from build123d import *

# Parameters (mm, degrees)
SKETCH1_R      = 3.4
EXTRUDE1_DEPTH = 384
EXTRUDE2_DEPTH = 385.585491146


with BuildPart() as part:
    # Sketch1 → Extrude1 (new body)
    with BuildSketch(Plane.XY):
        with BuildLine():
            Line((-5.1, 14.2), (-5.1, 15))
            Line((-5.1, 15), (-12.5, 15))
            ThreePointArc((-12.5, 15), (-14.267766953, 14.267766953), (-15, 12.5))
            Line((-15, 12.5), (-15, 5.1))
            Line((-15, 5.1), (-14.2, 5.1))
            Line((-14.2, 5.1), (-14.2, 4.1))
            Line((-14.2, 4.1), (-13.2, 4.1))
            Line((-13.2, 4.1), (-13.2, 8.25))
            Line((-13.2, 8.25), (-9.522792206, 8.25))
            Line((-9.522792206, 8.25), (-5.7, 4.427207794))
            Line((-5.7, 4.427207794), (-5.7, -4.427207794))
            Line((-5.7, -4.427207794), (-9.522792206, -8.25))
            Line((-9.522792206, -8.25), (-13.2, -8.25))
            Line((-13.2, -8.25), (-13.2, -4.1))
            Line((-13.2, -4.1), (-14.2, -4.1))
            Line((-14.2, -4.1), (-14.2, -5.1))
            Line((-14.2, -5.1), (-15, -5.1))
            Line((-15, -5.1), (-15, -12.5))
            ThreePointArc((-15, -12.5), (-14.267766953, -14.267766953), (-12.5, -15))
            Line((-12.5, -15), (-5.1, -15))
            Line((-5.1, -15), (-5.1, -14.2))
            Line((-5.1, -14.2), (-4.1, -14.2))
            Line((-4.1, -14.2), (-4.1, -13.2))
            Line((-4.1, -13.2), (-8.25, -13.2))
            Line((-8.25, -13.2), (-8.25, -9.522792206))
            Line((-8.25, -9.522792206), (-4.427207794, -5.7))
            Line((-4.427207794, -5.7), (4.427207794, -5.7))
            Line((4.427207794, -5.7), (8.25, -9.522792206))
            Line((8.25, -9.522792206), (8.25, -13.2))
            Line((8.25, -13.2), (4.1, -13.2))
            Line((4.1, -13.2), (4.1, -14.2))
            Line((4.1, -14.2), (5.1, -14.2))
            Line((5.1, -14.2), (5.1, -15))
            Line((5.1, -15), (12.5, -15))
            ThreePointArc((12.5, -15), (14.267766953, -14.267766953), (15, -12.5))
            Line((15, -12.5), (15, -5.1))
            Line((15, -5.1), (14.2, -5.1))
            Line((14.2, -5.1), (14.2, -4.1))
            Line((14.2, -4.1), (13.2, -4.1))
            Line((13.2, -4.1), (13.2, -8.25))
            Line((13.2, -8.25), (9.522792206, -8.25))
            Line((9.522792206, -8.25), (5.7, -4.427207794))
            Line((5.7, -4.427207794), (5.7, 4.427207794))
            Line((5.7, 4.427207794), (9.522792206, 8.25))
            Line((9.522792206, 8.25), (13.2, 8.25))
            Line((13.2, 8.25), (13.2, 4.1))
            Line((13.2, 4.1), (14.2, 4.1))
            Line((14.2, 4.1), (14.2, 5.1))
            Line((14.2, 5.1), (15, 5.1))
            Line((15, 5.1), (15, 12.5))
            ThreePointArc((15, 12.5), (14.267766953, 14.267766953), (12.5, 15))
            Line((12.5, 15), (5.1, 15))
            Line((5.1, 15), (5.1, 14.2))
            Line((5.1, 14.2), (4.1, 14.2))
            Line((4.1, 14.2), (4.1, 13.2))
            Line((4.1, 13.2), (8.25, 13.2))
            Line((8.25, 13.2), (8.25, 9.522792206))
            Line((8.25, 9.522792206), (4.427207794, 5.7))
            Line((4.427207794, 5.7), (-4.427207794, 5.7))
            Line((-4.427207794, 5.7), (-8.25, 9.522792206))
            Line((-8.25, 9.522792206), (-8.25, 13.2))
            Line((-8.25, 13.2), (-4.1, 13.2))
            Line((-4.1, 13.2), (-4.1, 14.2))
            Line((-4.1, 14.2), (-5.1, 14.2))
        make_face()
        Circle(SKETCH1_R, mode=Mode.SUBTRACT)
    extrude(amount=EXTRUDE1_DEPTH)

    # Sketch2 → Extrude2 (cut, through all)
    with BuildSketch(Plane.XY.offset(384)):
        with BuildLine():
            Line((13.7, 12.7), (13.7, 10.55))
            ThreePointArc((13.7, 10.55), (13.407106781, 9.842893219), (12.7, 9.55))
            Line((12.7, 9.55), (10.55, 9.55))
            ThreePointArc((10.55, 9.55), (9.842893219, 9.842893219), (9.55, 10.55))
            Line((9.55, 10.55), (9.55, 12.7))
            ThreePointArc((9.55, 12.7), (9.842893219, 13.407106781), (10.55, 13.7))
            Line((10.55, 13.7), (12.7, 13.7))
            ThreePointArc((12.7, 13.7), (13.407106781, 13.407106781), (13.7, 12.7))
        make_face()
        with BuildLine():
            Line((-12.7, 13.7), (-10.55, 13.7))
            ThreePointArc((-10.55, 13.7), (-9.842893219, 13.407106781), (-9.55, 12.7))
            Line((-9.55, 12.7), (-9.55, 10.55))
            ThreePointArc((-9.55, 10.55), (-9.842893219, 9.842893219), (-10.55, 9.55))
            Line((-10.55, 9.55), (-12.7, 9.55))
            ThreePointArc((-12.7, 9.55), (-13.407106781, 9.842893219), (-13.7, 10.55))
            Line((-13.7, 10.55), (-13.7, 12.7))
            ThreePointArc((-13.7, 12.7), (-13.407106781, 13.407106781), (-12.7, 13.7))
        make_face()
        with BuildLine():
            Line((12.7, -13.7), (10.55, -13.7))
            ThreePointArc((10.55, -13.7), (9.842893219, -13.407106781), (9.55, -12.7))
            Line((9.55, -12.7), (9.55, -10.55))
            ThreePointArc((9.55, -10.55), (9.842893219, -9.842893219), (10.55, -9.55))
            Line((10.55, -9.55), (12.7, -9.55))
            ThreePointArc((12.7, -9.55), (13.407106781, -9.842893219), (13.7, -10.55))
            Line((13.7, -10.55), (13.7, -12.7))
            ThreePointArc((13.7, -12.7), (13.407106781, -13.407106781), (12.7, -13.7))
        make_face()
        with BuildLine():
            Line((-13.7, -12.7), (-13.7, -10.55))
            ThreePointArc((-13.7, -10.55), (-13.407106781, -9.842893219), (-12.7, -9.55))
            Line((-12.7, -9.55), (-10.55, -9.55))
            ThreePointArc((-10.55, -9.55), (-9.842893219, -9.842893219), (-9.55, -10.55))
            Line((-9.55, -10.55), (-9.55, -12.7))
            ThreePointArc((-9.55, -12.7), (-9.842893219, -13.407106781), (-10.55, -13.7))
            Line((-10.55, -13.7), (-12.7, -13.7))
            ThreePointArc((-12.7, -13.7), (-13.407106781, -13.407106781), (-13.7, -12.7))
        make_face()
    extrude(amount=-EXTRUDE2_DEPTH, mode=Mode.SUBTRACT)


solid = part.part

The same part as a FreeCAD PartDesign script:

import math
import FreeCAD as App
import Part
import Sketcher

V = App.Vector

doc = App.newDocument("Part")
body = doc.addObject("PartDesign::Body", "Body")

# Sketch on XY plane
sketch1 = body.newObject("Sketcher::SketchObject", "Sketch")
sketch1.AttachmentSupport = (doc.getObject("XY_Plane"), [""])
sketch1.MapMode = "FlatFace"
sketch1.addGeometry([
    Part.LineSegment(V(-5.1, 14.2, 0), V(-5.1, 15, 0)),  # 0
    Part.LineSegment(V(-5.1, 15, 0), V(-12.5, 15, 0)),  # 1
    Part.ArcOfCircle(Part.Circle(V(-12.5, 12.5, 0), V(0, 0, 1), 2.5), math.radians(90), math.radians(180)),  # 2
    Part.LineSegment(V(-15, 12.5, 0), V(-15, 5.1, 0)),  # 3
    Part.LineSegment(V(-15, 5.1, 0), V(-14.2, 5.1, 0)),  # 4
    Part.LineSegment(V(-14.2, 5.1, 0), V(-14.2, 4.1, 0)),  # 5
    Part.LineSegment(V(-14.2, 4.1, 0), V(-13.2, 4.1, 0)),  # 6
    Part.LineSegment(V(-13.2, 4.1, 0), V(-13.2, 8.2, 0)),  # 7
    Part.LineSegment(V(-13.2, 8.2, 0), V(-9.5, 8.2, 0)),  # 8
    Part.LineSegment(V(-9.5, 8.2, 0), V(-5.7, 4.4, 0)),  # 9
    Part.LineSegment(V(-5.7, 4.4, 0), V(-5.7, -4.4, 0)),  # 10
    Part.LineSegment(V(-5.7, -4.4, 0), V(-9.5, -8.2, 0)),  # 11
    Part.LineSegment(V(-9.5, -8.2, 0), V(-13.2, -8.2, 0)),  # 12
    Part.LineSegment(V(-13.2, -8.2, 0), V(-13.2, -4.1, 0)),  # 13
    Part.LineSegment(V(-13.2, -4.1, 0), V(-14.2, -4.1, 0)),  # 14
    Part.LineSegment(V(-14.2, -4.1, 0), V(-14.2, -5.1, 0)),  # 15
    Part.LineSegment(V(-14.2, -5.1, 0), V(-15, -5.1, 0)),  # 16
    Part.LineSegment(V(-15, -5.1, 0), V(-15, -12.5, 0)),  # 17
    Part.ArcOfCircle(Part.Circle(V(-12.5, -12.5, 0), V(0, 0, 1), 2.5), math.radians(180), math.radians(270)),  # 18
    Part.LineSegment(V(-12.5, -15, 0), V(-5.1, -15, 0)),  # 19
    Part.LineSegment(V(-5.1, -15, 0), V(-5.1, -14.2, 0)),  # 20
    Part.LineSegment(V(-5.1, -14.2, 0), V(-4.1, -14.2, 0)),  # 21
    Part.LineSegment(V(-4.1, -14.2, 0), V(-4.1, -13.2, 0)),  # 22
    Part.LineSegment(V(-4.1, -13.2, 0), V(-8.2, -13.2, 0)),  # 23
    Part.LineSegment(V(-8.2, -13.2, 0), V(-8.2, -9.5, 0)),  # 24
    Part.LineSegment(V(-8.2, -9.5, 0), V(-4.4, -5.7, 0)),  # 25
    Part.LineSegment(V(-4.4, -5.7, 0), V(4.4, -5.7, 0)),  # 26
    Part.LineSegment(V(4.4, -5.7, 0), V(8.2, -9.5, 0)),  # 27
    Part.LineSegment(V(8.2, -9.5, 0), V(8.2, -13.2, 0)),  # 28
    Part.LineSegment(V(8.2, -13.2, 0), V(4.1, -13.2, 0)),  # 29
    Part.LineSegment(V(4.1, -13.2, 0), V(4.1, -14.2, 0)),  # 30
    Part.LineSegment(V(4.1, -14.2, 0), V(5.1, -14.2, 0)),  # 31
    Part.LineSegment(V(5.1, -14.2, 0), V(5.1, -15, 0)),  # 32
    Part.LineSegment(V(5.1, -15, 0), V(12.5, -15, 0)),  # 33
    Part.ArcOfCircle(Part.Circle(V(12.5, -12.5, 0), V(0, 0, 1), 2.5), math.radians(-90), math.radians(0)),  # 34
    Part.LineSegment(V(15, -12.5, 0), V(15, -5.1, 0)),  # 35
    Part.LineSegment(V(15, -5.1, 0), V(14.2, -5.1, 0)),  # 36
    Part.LineSegment(V(14.2, -5.1, 0), V(14.2, -4.1, 0)),  # 37
    Part.LineSegment(V(14.2, -4.1, 0), V(13.2, -4.1, 0)),  # 38
    Part.LineSegment(V(13.2, -4.1, 0), V(13.2, -8.2, 0)),  # 39
    Part.LineSegment(V(13.2, -8.2, 0), V(9.5, -8.2, 0)),  # 40
    Part.LineSegment(V(9.5, -8.2, 0), V(5.7, -4.4, 0)),  # 41
    Part.LineSegment(V(5.7, -4.4, 0), V(5.7, 4.4, 0)),  # 42
    Part.LineSegment(V(5.7, 4.4, 0), V(9.5, 8.2, 0)),  # 43
    Part.LineSegment(V(9.5, 8.2, 0), V(13.2, 8.2, 0)),  # 44
    Part.LineSegment(V(13.2, 8.2, 0), V(13.2, 4.1, 0)),  # 45
    Part.LineSegment(V(13.2, 4.1, 0), V(14.2, 4.1, 0)),  # 46
    Part.LineSegment(V(14.2, 4.1, 0), V(14.2, 5.1, 0)),  # 47
    Part.LineSegment(V(14.2, 5.1, 0), V(15, 5.1, 0)),  # 48
    Part.LineSegment(V(15, 5.1, 0), V(15, 12.5, 0)),  # 49
    Part.ArcOfCircle(Part.Circle(V(12.5, 12.5, 0), V(0, 0, 1), 2.5), math.radians(0), math.radians(90)),  # 50
    Part.LineSegment(V(12.5, 15, 0), V(5.1, 15, 0)),  # 51
    Part.LineSegment(V(5.1, 15, 0), V(5.1, 14.2, 0)),  # 52
    Part.LineSegment(V(5.1, 14.2, 0), V(4.1, 14.2, 0)),  # 53
    Part.LineSegment(V(4.1, 14.2, 0), V(4.1, 13.2, 0)),  # 54
    Part.LineSegment(V(4.1, 13.2, 0), V(8.2, 13.2, 0)),  # 55
    Part.LineSegment(V(8.2, 13.2, 0), V(8.2, 9.5, 0)),  # 56
    Part.LineSegment(V(8.2, 9.5, 0), V(4.4, 5.7, 0)),  # 57
    Part.LineSegment(V(4.4, 5.7, 0), V(-4.4, 5.7, 0)),  # 58
    Part.LineSegment(V(-4.4, 5.7, 0), V(-8.2, 9.5, 0)),  # 59
    Part.LineSegment(V(-8.2, 9.5, 0), V(-8.2, 13.2, 0)),  # 60
    Part.LineSegment(V(-8.2, 13.2, 0), V(-4.1, 13.2, 0)),  # 61
    Part.LineSegment(V(-4.1, 13.2, 0), V(-4.1, 14.2, 0)),  # 62
    Part.LineSegment(V(-4.1, 14.2, 0), V(-5.1, 14.2, 0)),  # 63
    Part.Circle(V(0, 0, 0), V(0, 0, 1), 3.4),  # 64
], False)
sketch1.addConstraint([
    Sketcher.Constraint("Coincident", 0, 2, 1, 1),
    Sketcher.Constraint("Tangent", 1, 2, 2, 1),
    Sketcher.Constraint("Tangent", 2, 2, 3, 1),
    Sketcher.Constraint("Coincident", 3, 2, 4, 1),
    Sketcher.Constraint("Coincident", 4, 2, 5, 1),
    Sketcher.Constraint("Coincident", 5, 2, 6, 1),
    Sketcher.Constraint("Coincident", 6, 2, 7, 1),
    Sketcher.Constraint("Coincident", 7, 2, 8, 1),
    Sketcher.Constraint("Coincident", 8, 2, 9, 1),
    Sketcher.Constraint("Coincident", 9, 2, 10, 1),
    Sketcher.Constraint("Coincident", 10, 2, 11, 1),
    Sketcher.Constraint("Coincident", 11, 2, 12, 1),
    Sketcher.Constraint("Coincident", 12, 2, 13, 1),
    Sketcher.Constraint("Coincident", 13, 2, 14, 1),
    Sketcher.Constraint("Coincident", 14, 2, 15, 1),
    Sketcher.Constraint("Coincident", 15, 2, 16, 1),
    Sketcher.Constraint("Coincident", 16, 2, 17, 1),
    Sketcher.Constraint("Tangent", 17, 2, 18, 1),
    Sketcher.Constraint("Tangent", 18, 2, 19, 1),
    Sketcher.Constraint("Coincident", 19, 2, 20, 1),
    Sketcher.Constraint("Coincident", 20, 2, 21, 1),
    Sketcher.Constraint("Coincident", 21, 2, 22, 1),
    Sketcher.Constraint("Coincident", 22, 2, 23, 1),
    Sketcher.Constraint("Coincident", 23, 2, 24, 1),
    Sketcher.Constraint("Coincident", 24, 2, 25, 1),
    Sketcher.Constraint("Coincident", 25, 2, 26, 1),
    Sketcher.Constraint("Coincident", 26, 2, 27, 1),
    Sketcher.Constraint("Coincident", 27, 2, 28, 1),
    Sketcher.Constraint("Coincident", 28, 2, 29, 1),
    Sketcher.Constraint("Coincident", 29, 2, 30, 1),
    Sketcher.Constraint("Coincident", 30, 2, 31, 1),
    Sketcher.Constraint("Coincident", 31, 2, 32, 1),
    Sketcher.Constraint("Coincident", 32, 2, 33, 1),
    Sketcher.Constraint("Tangent", 33, 2, 34, 1),
    Sketcher.Constraint("Tangent", 34, 2, 35, 1),
    Sketcher.Constraint("Coincident", 35, 2, 36, 1),
    Sketcher.Constraint("Coincident", 36, 2, 37, 1),
    Sketcher.Constraint("Coincident", 37, 2, 38, 1),
    Sketcher.Constraint("Coincident", 38, 2, 39, 1),
    Sketcher.Constraint("Coincident", 39, 2, 40, 1),
    Sketcher.Constraint("Coincident", 40, 2, 41, 1),
    Sketcher.Constraint("Coincident", 41, 2, 42, 1),
    Sketcher.Constraint("Coincident", 42, 2, 43, 1),
    Sketcher.Constraint("Coincident", 43, 2, 44, 1),
    Sketcher.Constraint("Coincident", 44, 2, 45, 1),
    Sketcher.Constraint("Coincident", 45, 2, 46, 1),
    Sketcher.Constraint("Coincident", 46, 2, 47, 1),
    Sketcher.Constraint("Coincident", 47, 2, 48, 1),
    Sketcher.Constraint("Coincident", 48, 2, 49, 1),
    Sketcher.Constraint("Tangent", 49, 2, 50, 1),
    Sketcher.Constraint("Tangent", 50, 2, 51, 1),
    Sketcher.Constraint("Coincident", 51, 2, 52, 1),
    Sketcher.Constraint("Coincident", 52, 2, 53, 1),
    Sketcher.Constraint("Coincident", 53, 2, 54, 1),
    Sketcher.Constraint("Coincident", 54, 2, 55, 1),
    Sketcher.Constraint("Coincident", 55, 2, 56, 1),
    Sketcher.Constraint("Coincident", 56, 2, 57, 1),
    Sketcher.Constraint("Coincident", 57, 2, 58, 1),
    Sketcher.Constraint("Coincident", 58, 2, 59, 1),
    Sketcher.Constraint("Coincident", 59, 2, 60, 1),
    Sketcher.Constraint("Coincident", 60, 2, 61, 1),
    Sketcher.Constraint("Coincident", 61, 2, 62, 1),
    Sketcher.Constraint("Coincident", 62, 2, 63, 1),
    Sketcher.Constraint("Coincident", 63, 2, 0, 1),
    Sketcher.Constraint("Vertical", 0),
    Sketcher.Constraint("Horizontal", 1),
    Sketcher.Constraint("Vertical", 3),
    Sketcher.Constraint("Horizontal", 4),
    Sketcher.Constraint("Vertical", 5),
    Sketcher.Constraint("Horizontal", 6),
    Sketcher.Constraint("Vertical", 7),
    Sketcher.Constraint("Horizontal", 8),
    Sketcher.Constraint("Vertical", 10),
    Sketcher.Constraint("Horizontal", 12),
    Sketcher.Constraint("Vertical", 13),
    Sketcher.Constraint("Horizontal", 14),
    Sketcher.Constraint("Vertical", 15),
    Sketcher.Constraint("Horizontal", 16),
    Sketcher.Constraint("Vertical", 17),
    Sketcher.Constraint("Horizontal", 19),
    Sketcher.Constraint("Vertical", 20),
    Sketcher.Constraint("Horizontal", 21),
    Sketcher.Constraint("Vertical", 22),
    Sketcher.Constraint("Horizontal", 23),
    Sketcher.Constraint("Vertical", 24),
    Sketcher.Constraint("Horizontal", 26),
    Sketcher.Constraint("Vertical", 28),
    Sketcher.Constraint("Horizontal", 29),
    Sketcher.Constraint("Vertical", 30),
    Sketcher.Constraint("Horizontal", 31),
    Sketcher.Constraint("Vertical", 32),
    Sketcher.Constraint("Horizontal", 33),
    Sketcher.Constraint("Vertical", 35),
    Sketcher.Constraint("Horizontal", 36),
    Sketcher.Constraint("Vertical", 37),
    Sketcher.Constraint("Horizontal", 38),
    Sketcher.Constraint("Vertical", 39),
    Sketcher.Constraint("Horizontal", 40),
    Sketcher.Constraint("Vertical", 42),
    Sketcher.Constraint("Horizontal", 44),
    Sketcher.Constraint("Vertical", 45),
    Sketcher.Constraint("Horizontal", 46),
    Sketcher.Constraint("Vertical", 47),
    Sketcher.Constraint("Horizontal", 48),
    Sketcher.Constraint("Vertical", 49),
    Sketcher.Constraint("Horizontal", 51),
    Sketcher.Constraint("Vertical", 52),
    Sketcher.Constraint("Horizontal", 53),
    Sketcher.Constraint("Vertical", 54),
    Sketcher.Constraint("Horizontal", 55),
    Sketcher.Constraint("Vertical", 56),
    Sketcher.Constraint("Horizontal", 58),
    Sketcher.Constraint("Vertical", 60),
    Sketcher.Constraint("Horizontal", 61),
    Sketcher.Constraint("Vertical", 62),
    Sketcher.Constraint("Horizontal", 63),
    Sketcher.Constraint("Coincident", 64, 3, -1, 1),
    Sketcher.Constraint("Equal", 2, 18),
    Sketcher.Constraint("Equal", 18, 34),
    Sketcher.Constraint("Equal", 34, 50),
    Sketcher.Constraint("Symmetric", 2, 3, 34, 3, -1, 1),
    Sketcher.Constraint("Symmetric", 18, 3, 50, 3, -1, 1),
    Sketcher.Constraint("Symmetric", 4, 2, 36, 2, -1, 1),
    Sketcher.Constraint("Symmetric", 6, 2, 38, 2, -1, 1),
    Sketcher.Constraint("Symmetric", 8, 2, 40, 2, -1, 1),
    Sketcher.Constraint("Symmetric", 9, 2, 41, 2, -1, 1),
    Sketcher.Constraint("Symmetric", 11, 2, 43, 2, -1, 1),
    Sketcher.Constraint("Symmetric", 13, 2, 45, 2, -1, 1),
    Sketcher.Constraint("Symmetric", 15, 2, 47, 2, -1, 1),
    Sketcher.Constraint("Symmetric", 20, 2, 52, 2, -1, 1),
    Sketcher.Constraint("Symmetric", 22, 2, 54, 2, -1, 1),
    Sketcher.Constraint("Symmetric", 24, 2, 56, 2, -1, 1),
    Sketcher.Constraint("Symmetric", 25, 2, 57, 2, -1, 1),
    Sketcher.Constraint("Symmetric", 27, 2, 59, 2, -1, 1),
    Sketcher.Constraint("Symmetric", 29, 2, 61, 2, -1, 1),
    Sketcher.Constraint("Symmetric", 31, 2, 63, 2, -1, 1),
    Sketcher.Constraint("Symmetric", 18, 3, 34, 3, -2),
    Sketcher.Constraint("Symmetric", 24, 2, 27, 2, -2),
    Sketcher.Constraint("Symmetric", 22, 2, 29, 2, -2),
    Sketcher.Constraint("Symmetric", 20, 2, 31, 2, -2),
    Sketcher.Constraint("Symmetric", 15, 2, 36, 2, -2),
    Sketcher.Constraint("Symmetric", 13, 2, 38, 2, -2),
    Sketcher.Constraint("Symmetric", 11, 2, 40, 2, -2),
    Sketcher.Constraint("Perpendicular", 9, 11),
    Sketcher.Constraint("Parallel", 11, 25),
    Sketcher.Constraint("Perpendicular", 25, 27),
    Sketcher.Constraint("Perpendicular", 41, 43),
    Sketcher.Constraint("Perpendicular", 57, 59),
    Sketcher.Constraint("Horizontal", 10, 2, 41, 2),
    Sketcher.Constraint("Equal", 14, 21),
    Sketcher.Constraint("Equal", 48, 0),
    Sketcher.Constraint("Equal", 51, 3),
    Sketcher.Constraint("Equal", 63, 5),
    Sketcher.Constraint("Equal", 61, 7),
    Sketcher.Constraint("Equal", 58, 10),
    Sketcher.Constraint("Equal", 15, 22),
    Sketcher.Constraint("Equal", 44, 24),
    Sketcher.Constraint("Equal", 11, 25),
    Sketcher.Constraint("Diameter", 64, 6.8),
    Sketcher.Constraint("Radius", 2, 2.5),
    Sketcher.Constraint("DistanceX", 6, 1, 6, 2, 1.0),
    Sketcher.Constraint("DistanceX", 1, 2, 1, 1, 7.4),
    Sketcher.Constraint("DistanceX", 4, 1, 4, 2, 0.8),
    Sketcher.Constraint("DistanceY", -1, 1, 0, 2, 15.0),
    Sketcher.Constraint("DistanceX", 23, 2, 23, 1, 4.15),
    Sketcher.Constraint("DistanceX", 9, 2, -1, 1, 5.7),
    Sketcher.Constraint("DistanceX", 8, 1, 8, 2, 3.677208),
])
pad1 = body.newObject("PartDesign::Pad", "Pad")
pad1.Profile = sketch1
pad1.Length = 384

# Sketch on XY plane
sketch2 = body.newObject("Sketcher::SketchObject", "Sketch001")
sketch2.AttachmentSupport = (doc.getObject("XY_Plane"), [""])
sketch2.MapMode = "FlatFace"
sketch2.AttachmentOffset = App.Placement(V(0, 0, 384), App.Rotation())
sketch2.addGeometry([
    Part.LineSegment(V(13.7, 10.6, 0), V(13.7, 12.7, 0)),  # 0
    Part.ArcOfCircle(Part.Circle(V(12.7, 12.7, 0), V(0, 0, 1), 1), math.radians(0), math.radians(90)),  # 1
    Part.LineSegment(V(12.7, 13.7, 0), V(10.6, 13.7, 0)),  # 2
    Part.ArcOfCircle(Part.Circle(V(10.6, 12.7, 0), V(0, 0, 1), 1), math.radians(90), math.radians(180)),  # 3
    Part.LineSegment(V(9.6, 12.7, 0), V(9.6, 10.6, 0)),  # 4
    Part.ArcOfCircle(Part.Circle(V(10.6, 10.6, 0), V(0, 0, 1), 1), math.radians(-180), math.radians(-90)),  # 5
    Part.LineSegment(V(10.6, 9.6, 0), V(12.7, 9.6, 0)),  # 6
    Part.ArcOfCircle(Part.Circle(V(12.7, 10.6, 0), V(0, 0, 1), 1), math.radians(-90), math.radians(0)),  # 7
    Part.LineSegment(V(-10.6, 13.7, 0), V(-12.7, 13.7, 0)),  # 8
    Part.ArcOfCircle(Part.Circle(V(-12.7, 12.7, 0), V(0, 0, 1), 1), math.radians(90), math.radians(180)),  # 9
    Part.LineSegment(V(-13.7, 12.7, 0), V(-13.7, 10.6, 0)),  # 10
    Part.ArcOfCircle(Part.Circle(V(-12.7, 10.6, 0), V(0, 0, 1), 1), math.radians(-180), math.radians(-90)),  # 11
    Part.LineSegment(V(-12.7, 9.6, 0), V(-10.6, 9.6, 0)),  # 12
    Part.ArcOfCircle(Part.Circle(V(-10.6, 10.6, 0), V(0, 0, 1), 1), math.radians(-90), math.radians(0)),  # 13
    Part.LineSegment(V(-9.6, 10.6, 0), V(-9.6, 12.7, 0)),  # 14
    Part.ArcOfCircle(Part.Circle(V(-10.6, 12.7, 0), V(0, 0, 1), 1), math.radians(0), math.radians(90)),  # 15
    Part.LineSegment(V(10.6, -13.7, 0), V(12.7, -13.7, 0)),  # 16
    Part.ArcOfCircle(Part.Circle(V(12.7, -12.7, 0), V(0, 0, 1), 1), math.radians(-90), math.radians(0)),  # 17
    Part.LineSegment(V(13.7, -12.7, 0), V(13.7, -10.6, 0)),  # 18
    Part.ArcOfCircle(Part.Circle(V(12.7, -10.6, 0), V(0, 0, 1), 1), math.radians(0), math.radians(90)),  # 19
    Part.LineSegment(V(12.7, -9.6, 0), V(10.6, -9.6, 0)),  # 20
    Part.ArcOfCircle(Part.Circle(V(10.6, -10.6, 0), V(0, 0, 1), 1), math.radians(90), math.radians(180)),  # 21
    Part.LineSegment(V(9.6, -10.6, 0), V(9.6, -12.7, 0)),  # 22
    Part.ArcOfCircle(Part.Circle(V(10.6, -12.7, 0), V(0, 0, 1), 1), math.radians(-180), math.radians(-90)),  # 23
    Part.LineSegment(V(-13.7, -10.6, 0), V(-13.7, -12.7, 0)),  # 24
    Part.ArcOfCircle(Part.Circle(V(-12.7, -12.7, 0), V(0, 0, 1), 1), math.radians(-180), math.radians(-90)),  # 25
    Part.LineSegment(V(-12.7, -13.7, 0), V(-10.6, -13.7, 0)),  # 26
    Part.ArcOfCircle(Part.Circle(V(-10.6, -12.7, 0), V(0, 0, 1), 1), math.radians(-90), math.radians(0)),  # 27
    Part.LineSegment(V(-9.6, -12.7, 0), V(-9.6, -10.6, 0)),  # 28
    Part.ArcOfCircle(Part.Circle(V(-10.6, -10.6, 0), V(0, 0, 1), 1), math.radians(0), math.radians(90)),  # 29
    Part.LineSegment(V(-10.6, -9.6, 0), V(-12.7, -9.6, 0)),  # 30
    Part.ArcOfCircle(Part.Circle(V(-12.7, -10.6, 0), V(0, 0, 1), 1), math.radians(90), math.radians(180)),  # 31
], False)
sketch2.addConstraint([
    Sketcher.Constraint("Tangent", 0, 2, 1, 1),
    Sketcher.Constraint("Tangent", 1, 2, 2, 1),
    Sketcher.Constraint("Tangent", 2, 2, 3, 1),
    Sketcher.Constraint("Tangent", 3, 2, 4, 1),
    Sketcher.Constraint("Tangent", 4, 2, 5, 1),
    Sketcher.Constraint("Tangent", 5, 2, 6, 1),
    Sketcher.Constraint("Tangent", 6, 2, 7, 1),
    Sketcher.Constraint("Tangent", 7, 2, 0, 1),
    Sketcher.Constraint("Tangent", 8, 2, 9, 1),
    Sketcher.Constraint("Tangent", 9, 2, 10, 1),
    Sketcher.Constraint("Tangent", 10, 2, 11, 1),
    Sketcher.Constraint("Tangent", 11, 2, 12, 1),
    Sketcher.Constraint("Tangent", 12, 2, 13, 1),
    Sketcher.Constraint("Tangent", 13, 2, 14, 1),
    Sketcher.Constraint("Tangent", 14, 2, 15, 1),
    Sketcher.Constraint("Tangent", 15, 2, 8, 1),
    Sketcher.Constraint("Tangent", 16, 2, 17, 1),
    Sketcher.Constraint("Tangent", 17, 2, 18, 1),
    Sketcher.Constraint("Tangent", 18, 2, 19, 1),
    Sketcher.Constraint("Tangent", 19, 2, 20, 1),
    Sketcher.Constraint("Tangent", 20, 2, 21, 1),
    Sketcher.Constraint("Tangent", 21, 2, 22, 1),
    Sketcher.Constraint("Tangent", 22, 2, 23, 1),
    Sketcher.Constraint("Tangent", 23, 2, 16, 1),
    Sketcher.Constraint("Tangent", 24, 2, 25, 1),
    Sketcher.Constraint("Tangent", 25, 2, 26, 1),
    Sketcher.Constraint("Tangent", 26, 2, 27, 1),
    Sketcher.Constraint("Tangent", 27, 2, 28, 1),
    Sketcher.Constraint("Tangent", 28, 2, 29, 1),
    Sketcher.Constraint("Tangent", 29, 2, 30, 1),
    Sketcher.Constraint("Tangent", 30, 2, 31, 1),
    Sketcher.Constraint("Tangent", 31, 2, 24, 1),
    Sketcher.Constraint("Vertical", 0),
    Sketcher.Constraint("Horizontal", 2),
    Sketcher.Constraint("Vertical", 4),
    Sketcher.Constraint("Horizontal", 6),
    Sketcher.Constraint("Horizontal", 8),
    Sketcher.Constraint("Vertical", 10),
    Sketcher.Constraint("Horizontal", 12),
    Sketcher.Constraint("Vertical", 14),
    Sketcher.Constraint("Horizontal", 16),
    Sketcher.Constraint("Vertical", 18),
    Sketcher.Constraint("Horizontal", 20),
    Sketcher.Constraint("Vertical", 22),
    Sketcher.Constraint("Vertical", 24),
    Sketcher.Constraint("Horizontal", 26),
    Sketcher.Constraint("Vertical", 28),
    Sketcher.Constraint("Horizontal", 30),
    Sketcher.Constraint("Equal", 1, 3),
    Sketcher.Constraint("Equal", 3, 5),
    Sketcher.Constraint("Equal", 5, 7),
    Sketcher.Constraint("Equal", 7, 9),
    Sketcher.Constraint("Equal", 9, 11),
    Sketcher.Constraint("Equal", 11, 13),
    Sketcher.Constraint("Equal", 13, 15),
    Sketcher.Constraint("Equal", 15, 17),
    Sketcher.Constraint("Equal", 17, 19),
    Sketcher.Constraint("Equal", 19, 21),
    Sketcher.Constraint("Equal", 21, 23),
    Sketcher.Constraint("Equal", 23, 25),
    Sketcher.Constraint("Equal", 25, 27),
    Sketcher.Constraint("Equal", 27, 29),
    Sketcher.Constraint("Equal", 29, 31),
    Sketcher.Constraint("Symmetric", 9, 3, 17, 3, -1, 1),
    Sketcher.Constraint("Symmetric", 13, 3, 21, 3, -1, 1),
    Sketcher.Constraint("Symmetric", 1, 3, 25, 3, -1, 1),
    Sketcher.Constraint("Symmetric", 5, 3, 29, 3, -1, 1),
    Sketcher.Constraint("Symmetric", 1, 3, 9, 3, -2),
    Sketcher.Constraint("Symmetric", 5, 3, 13, 3, -2),
    Sketcher.Constraint("Equal", 30, 0),
    Sketcher.Constraint("Radius", 1, 1.0),
    Sketcher.Constraint("DistanceX", 2, 2, 2, 1, 2.15),
    Sketcher.Constraint("DistanceX", -1, 1, 1, 3, 12.7),
    Sketcher.Constraint("DistanceY", -1, 1, 1, 3, 12.7),
])
pocket1 = body.newObject("PartDesign::Pocket", "Pocket")
pocket1.Profile = sketch2
pocket1.Type = "ThroughAll"

doc.recompute()
